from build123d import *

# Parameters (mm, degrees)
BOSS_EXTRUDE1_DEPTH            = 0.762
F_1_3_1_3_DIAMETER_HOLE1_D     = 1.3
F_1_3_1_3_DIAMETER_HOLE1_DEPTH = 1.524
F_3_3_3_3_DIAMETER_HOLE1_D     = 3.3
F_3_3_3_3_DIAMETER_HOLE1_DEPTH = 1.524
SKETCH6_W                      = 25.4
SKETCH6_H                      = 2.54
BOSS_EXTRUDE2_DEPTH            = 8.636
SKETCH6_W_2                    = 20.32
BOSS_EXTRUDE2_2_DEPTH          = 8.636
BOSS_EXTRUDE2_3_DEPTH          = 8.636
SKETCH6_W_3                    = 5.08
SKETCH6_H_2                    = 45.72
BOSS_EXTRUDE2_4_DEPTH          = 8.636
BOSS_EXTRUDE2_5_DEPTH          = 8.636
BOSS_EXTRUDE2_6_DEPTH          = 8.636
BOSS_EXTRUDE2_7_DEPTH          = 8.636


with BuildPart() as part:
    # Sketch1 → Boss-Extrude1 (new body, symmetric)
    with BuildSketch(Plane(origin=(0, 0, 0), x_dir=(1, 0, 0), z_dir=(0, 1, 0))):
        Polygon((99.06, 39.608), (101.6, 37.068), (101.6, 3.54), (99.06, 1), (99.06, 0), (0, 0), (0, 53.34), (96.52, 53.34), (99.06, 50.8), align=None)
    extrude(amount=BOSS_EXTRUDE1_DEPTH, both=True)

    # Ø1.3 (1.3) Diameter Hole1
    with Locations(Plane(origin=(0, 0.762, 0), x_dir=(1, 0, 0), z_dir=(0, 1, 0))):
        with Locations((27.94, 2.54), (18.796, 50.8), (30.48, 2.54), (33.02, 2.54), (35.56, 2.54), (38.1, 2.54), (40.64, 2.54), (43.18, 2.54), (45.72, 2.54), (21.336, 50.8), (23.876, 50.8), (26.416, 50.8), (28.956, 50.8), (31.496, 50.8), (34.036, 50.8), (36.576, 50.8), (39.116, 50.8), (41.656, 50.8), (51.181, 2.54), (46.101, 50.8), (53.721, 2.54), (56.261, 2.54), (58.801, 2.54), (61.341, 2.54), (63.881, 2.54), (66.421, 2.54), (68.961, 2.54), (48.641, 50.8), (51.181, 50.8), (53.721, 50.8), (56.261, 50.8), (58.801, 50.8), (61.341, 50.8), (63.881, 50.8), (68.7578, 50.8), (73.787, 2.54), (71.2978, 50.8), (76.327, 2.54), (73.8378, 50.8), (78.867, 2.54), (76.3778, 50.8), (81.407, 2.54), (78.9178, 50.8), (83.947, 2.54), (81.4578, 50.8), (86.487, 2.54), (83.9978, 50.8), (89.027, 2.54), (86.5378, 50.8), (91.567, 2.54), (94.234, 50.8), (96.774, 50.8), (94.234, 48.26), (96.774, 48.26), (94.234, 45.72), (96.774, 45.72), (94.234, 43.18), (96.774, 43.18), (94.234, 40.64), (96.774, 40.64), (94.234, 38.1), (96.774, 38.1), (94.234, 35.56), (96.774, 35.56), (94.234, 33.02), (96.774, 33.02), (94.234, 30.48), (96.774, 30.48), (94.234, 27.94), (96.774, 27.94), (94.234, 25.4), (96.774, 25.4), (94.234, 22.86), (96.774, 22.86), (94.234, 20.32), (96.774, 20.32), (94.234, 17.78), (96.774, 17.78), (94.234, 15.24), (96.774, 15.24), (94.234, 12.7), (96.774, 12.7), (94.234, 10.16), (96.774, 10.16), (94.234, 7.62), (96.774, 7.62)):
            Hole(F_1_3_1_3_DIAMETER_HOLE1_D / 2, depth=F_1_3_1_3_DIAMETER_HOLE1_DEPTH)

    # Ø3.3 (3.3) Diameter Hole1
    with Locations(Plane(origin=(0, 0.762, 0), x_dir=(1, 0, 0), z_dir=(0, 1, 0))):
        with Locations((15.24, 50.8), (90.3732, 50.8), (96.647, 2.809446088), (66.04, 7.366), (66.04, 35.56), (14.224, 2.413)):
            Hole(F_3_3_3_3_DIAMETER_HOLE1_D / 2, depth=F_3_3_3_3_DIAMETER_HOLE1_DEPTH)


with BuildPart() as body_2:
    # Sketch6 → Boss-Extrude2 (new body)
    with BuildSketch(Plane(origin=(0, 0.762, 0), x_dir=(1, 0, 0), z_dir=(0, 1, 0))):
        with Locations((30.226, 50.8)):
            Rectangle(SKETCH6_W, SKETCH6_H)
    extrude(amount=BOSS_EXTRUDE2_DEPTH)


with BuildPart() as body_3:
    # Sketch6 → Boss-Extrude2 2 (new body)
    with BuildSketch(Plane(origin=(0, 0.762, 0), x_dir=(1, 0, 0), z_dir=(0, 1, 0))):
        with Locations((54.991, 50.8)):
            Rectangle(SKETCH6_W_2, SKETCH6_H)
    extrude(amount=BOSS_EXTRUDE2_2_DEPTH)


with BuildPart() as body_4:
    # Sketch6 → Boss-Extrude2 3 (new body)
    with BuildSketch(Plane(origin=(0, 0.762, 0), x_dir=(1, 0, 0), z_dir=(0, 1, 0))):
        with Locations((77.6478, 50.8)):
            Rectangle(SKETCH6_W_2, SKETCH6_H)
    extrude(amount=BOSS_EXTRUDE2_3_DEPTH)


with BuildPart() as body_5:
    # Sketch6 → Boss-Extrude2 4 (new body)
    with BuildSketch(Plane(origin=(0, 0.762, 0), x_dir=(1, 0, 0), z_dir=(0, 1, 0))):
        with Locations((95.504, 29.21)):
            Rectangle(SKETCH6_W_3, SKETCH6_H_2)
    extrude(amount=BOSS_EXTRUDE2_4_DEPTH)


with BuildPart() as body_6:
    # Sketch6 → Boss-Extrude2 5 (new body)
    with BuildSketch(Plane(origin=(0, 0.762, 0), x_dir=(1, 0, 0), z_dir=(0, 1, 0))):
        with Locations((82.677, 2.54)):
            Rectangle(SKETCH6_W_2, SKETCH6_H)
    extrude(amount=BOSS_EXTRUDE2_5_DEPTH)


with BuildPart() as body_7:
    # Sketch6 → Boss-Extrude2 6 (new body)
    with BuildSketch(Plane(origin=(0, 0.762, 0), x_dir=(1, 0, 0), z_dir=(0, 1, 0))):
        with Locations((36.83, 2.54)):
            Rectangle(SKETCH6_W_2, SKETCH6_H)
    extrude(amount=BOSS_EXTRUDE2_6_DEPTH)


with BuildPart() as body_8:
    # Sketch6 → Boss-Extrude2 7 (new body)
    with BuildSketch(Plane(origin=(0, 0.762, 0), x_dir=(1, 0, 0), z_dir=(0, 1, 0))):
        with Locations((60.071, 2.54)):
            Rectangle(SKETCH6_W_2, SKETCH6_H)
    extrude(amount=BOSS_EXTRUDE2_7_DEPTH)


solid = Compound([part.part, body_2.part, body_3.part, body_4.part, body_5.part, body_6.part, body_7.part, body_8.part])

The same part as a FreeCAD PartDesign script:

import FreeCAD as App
import Part
import Sketcher
Q = App.Units.Quantity


def add_polygon(sketch, points):
    """Adds a closed chain of lines whose ends are joined by coincident constraints."""
    first, n = sketch.GeometryCount, len(points)
    for a, b in zip(points, points[1:] + points[:1]):
        sketch.addGeometry(Part.LineSegment(App.Vector(*a, 0), App.Vector(*b, 0)), False)
    for i in range(n):
        sketch.addConstraint(Sketcher.Constraint("Coincident", first + i, 2, first + (i + 1) % n, 1))

doc = App.newDocument("Part")
body = doc.addObject("PartDesign::Body", "Body")

# Sketch on XZ plane
sketch1 = body.newObject("Sketcher::SketchObject", "Sketch")
sketch1.AttachmentSupport = (doc.getObject("XZ_Plane"), [""])
sketch1.MapMode = "FlatFace"
add_polygon(sketch1, [(101.6, -37.1), (99.1, -39.6), (99.1, -50.8), (96.5, -53.3), (0, -53.3), (0, 0), (99.1, 0), (99.1, -1), (101.6, -3.5)])  # lines 0-8
sketch1.addConstraint(Sketcher.Constraint("Vertical", 1))
sketch1.addConstraint(Sketcher.Constraint("Horizontal", 3))
sketch1.addConstraint(Sketcher.Constraint("Vertical", 4))
sketch1.addConstraint(Sketcher.Constraint("Horizontal", 5))
sketch1.addConstraint(Sketcher.Constraint("Vertical", 6))
sketch1.addConstraint(Sketcher.Constraint("Vertical", 8))
sketch1.addConstraint(Sketcher.Constraint("Coincident", 4, 2, -1, 1))
sketch1.addConstraint(Sketcher.Constraint("Parallel", 0, 2))
sketch1.addConstraint(Sketcher.Constraint("Perpendicular", 2, 7))
sketch1.addConstraint(Sketcher.Constraint("Vertical", 1, 2, 5, 2))
sketch1.addConstraint(Sketcher.Constraint("Equal", 0, 2))
sketch1.addConstraint(Sketcher.Constraint("Equal", 2, 7))
sketch1.addConstraint(Sketcher.Constraint("DistanceX", 3, 2, 3, 1, Q("3.8 in")))
sketch1.addConstraint(Sketcher.Constraint("DistanceX", 5, 1, 5, 2, Q("3.9 in")))
sketch1.addConstraint(Sketcher.Constraint("DistanceY", 4, 1, 4, 2, Q("2.1 in")))
sketch1.addConstraint(Sketcher.Constraint("DistanceY", 8, 2, 8, 1, Q("1.32 in")))
sketch1.addConstraint(Sketcher.Constraint("DistanceY", 1, 2, 1, 1, Q("11.192 mm")))
pad1 = body.newObject("PartDesign::Pad", "Pad")
pad1.Profile = sketch1
pad1.Length = Q("0.06 in")
pad1.Midplane = True

# Sketch on XZ plane
sketch2 = body.newObject("Sketcher::SketchObject", "Sketch001")
sketch2.AttachmentSupport = (doc.getObject("XZ_Plane"), [""])
sketch2.MapMode = "FlatFace"
sketch2.AttachmentOffset = App.Placement(App.Vector(0, 0, -0.03 * 25.4), App.Rotation())
sketch2.addGeometry(Part.Circle(App.Vector(27.9, -2.5, 0), App.Vector(0, 0, 1), 0.7), False)
sketch2.addGeometry(Part.Circle(App.Vector(18.8, -50.8, 0), App.Vector(0, 0, 1), 0.7), False)
sketch2.addGeometry(Part.Circle(App.Vector(30.5, -2.5, 0), App.Vector(0, 0, 1), 0.7), False)
sketch2.addGeometry(Part.Circle(App.Vector(33, -2.5, 0), App.Vector(0, 0, 1), 0.7), False)
sketch2.addGeometry(Part.Circle(App.Vector(35.6, -2.5, 0), App.Vector(0, 0, 1), 0.7), False)
sketch2.addGeometry(Part.Circle(App.Vector(38.1, -2.5, 0), App.Vector(0, 0, 1), 0.7), False)
sketch2.addGeometry(Part.Circle(App.Vector(40.6, -2.5, 0), App.Vector(0, 0, 1), 0.7), False)
sketch2.addGeometry(Part.Circle(App.Vector(43.2, -2.5, 0), App.Vector(0, 0, 1), 0.7), False)
sketch2.addGeometry(Part.Circle(App.Vector(45.7, -2.5, 0), App.Vector(0, 0, 1), 0.7), False)
sketch2.addGeometry(Part.Circle(App.Vector(21.3, -50.8, 0), App.Vector(0, 0, 1), 0.7), False)
sketch2.addGeometry(Part.Circle(App.Vector(23.9, -50.8, 0), App.Vector(0, 0, 1), 0.7), False)
sketch2.addGeometry(Part.Circle(App.Vector(26.4, -50.8, 0), App.Vector(0, 0, 1), 0.7), False)
sketch2.addGeometry(Part.Circle(App.Vector(29, -50.8, 0), App.Vector(0, 0, 1), 0.7), False)
sketch2.addGeometry(Part.Circle(App.Vector(31.5, -50.8, 0), App.Vector(0, 0, 1), 0.7), False)
sketch2.addGeometry(Part.Circle(App.Vector(34, -50.8, 0), App.Vector(0, 0, 1), 0.7), False)
sketch2.addGeometry(Part.Circle(App.Vector(36.6, -50.8, 0), App.Vector(0, 0, 1), 0.7), False)
sketch2.addGeometry(Part.Circle(App.Vector(39.1, -50.8, 0), App.Vector(0, 0, 1), 0.7), False)
sketch2.addGeometry(Part.Circle(App.Vector(41.7, -50.8, 0), App.Vector(0, 0, 1), 0.7), False)
sketch2.addGeometry(Part.Circle(App.Vector(51.2, -2.5, 0), App.Vector(0, 0, 1), 0.7), False)
sketch2.addGeometry(Part.Circle(App.Vector(46.1, -50.8, 0), App.Vector(0, 0, 1), 0.7), False)
sketch2.addGeometry(Part.Circle(App.Vector(53.7, -2.5, 0), App.Vector(0, 0, 1), 0.7), False)
sketch2.addGeometry(Part.Circle(App.Vector(56.3, -2.5, 0), App.Vector(0, 0, 1), 0.7), False)
sketch2.addGeometry(Part.Circle(App.Vector(58.8, -2.5, 0), App.Vector(0, 0, 1), 0.7), False)
sketch2.addGeometry(Part.Circle(App.Vector(61.3, -2.5, 0), App.Vector(0, 0, 1), 0.7), False)
sketch2.addGeometry(Part.Circle(App.Vector(63.9, -2.5, 0), App.Vector(0, 0, 1), 0.7), False)
sketch2.addGeometry(Part.Circle(App.Vector(66.4, -2.5, 0), App.Vector(0, 0, 1), 0.7), False)
sketch2.addGeometry(Part.Circle(App.Vector(69, -2.5, 0), App.Vector(0, 0, 1), 0.7), False)
sketch2.addGeometry(Part.Circle(App.Vector(48.6, -50.8, 0), App.Vector(0, 0, 1), 0.7), False)
sketch2.addGeometry(Part.Circle(App.Vector(51.2, -50.8, 0), App.Vector(0, 0, 1), 0.7), False)
sketch2.addGeometry(Part.Circle(App.Vector(53.7, -50.8, 0), App.Vector(0, 0, 1), 0.7), False)
sketch2.addGeometry(Part.Circle(App.Vector(56.3, -50.8, 0), App.Vector(0, 0, 1), 0.7), False)
sketch2.addGeometry(Part.Circle(App.Vector(58.8, -50.8, 0), App.Vector(0, 0, 1), 0.7), False)
sketch2.addGeometry(Part.Circle(App.Vector(61.3, -50.8, 0), App.Vector(0, 0, 1), 0.7), False)
sketch2.addGeometry(Part.Circle(App.Vector(63.9, -50.8, 0), App.Vector(0, 0, 1), 0.7), False)
sketch2.addGeometry(Part.Circle(App.Vector(68.8, -50.8, 0), App.Vector(0, 0, 1), 0.7), False)
sketch2.addGeometry(Part.Circle(App.Vector(73.8, -2.5, 0), App.Vector(0, 0, 1), 0.7), False)
sketch2.addGeometry(Part.Circle(App.Vector(71.3, -50.8, 0), App.Vector(0, 0, 1), 0.7), False)
sketch2.addGeometry(Part.Circle(App.Vector(76.3, -2.5, 0), App.Vector(0, 0, 1), 0.7), False)
sketch2.addGeometry(Part.Circle(App.Vector(73.8, -50.8, 0), App.Vector(0, 0, 1), 0.7), False)
sketch2.addGeometry(Part.Circle(App.Vector(78.9, -2.5, 0), App.Vector(0, 0, 1), 0.7), False)
sketch2.addGeometry(Part.Circle(App.Vector(76.4, -50.8, 0), App.Vector(0, 0, 1), 0.7), False)
sketch2.addGeometry(Part.Circle(App.Vector(81.4, -2.5, 0), App.Vector(0, 0, 1), 0.7), False)
sketch2.addGeometry(Part.Circle(App.Vector(78.9, -50.8, 0), App.Vector(0, 0, 1), 0.7), False)
sketch2.addGeometry(Part.Circle(App.Vector(83.9, -2.5, 0), App.Vector(0, 0, 1), 0.7), False)
sketch2.addGeometry(Part.Circle(App.Vector(81.5, -50.8, 0), App.Vector(0, 0, 1), 0.7), False)
sketch2.addGeometry(Part.Circle(App.Vector(86.5, -2.5, 0), App.Vector(0, 0, 1), 0.7), False)
sketch2.addGeometry(Part.Circle(App.Vector(84, -50.8, 0), App.Vector(0, 0, 1), 0.7), False)
sketch2.addGeometry(Part.Circle(App.Vector(89, -2.5, 0), App.Vector(0, 0, 1), 0.7), False)
sketch2.addGeometry(Part.Circle(App.Vector(86.5, -50.8, 0), App.Vector(0, 0, 1), 0.7), False)
sketch2.addGeometry(Part.Circle(App.Vector(91.6, -2.5, 0), App.Vector(0, 0, 1), 0.7), False)
sketch2.addGeometry(Part.Circle(App.Vector(94.2, -50.8, 0), App.Vector(0, 0, 1), 0.7), False)
sketch2.addGeometry(Part.Circle(App.Vector(96.8, -50.8, 0), App.Vector(0, 0, 1), 0.7), False)
sketch2.addGeometry(Part.Circle(App.Vector(94.2, -48.3, 0), App.Vector(0, 0, 1), 0.7), False)
sketch2.addGeometry(Part.Circle(App.Vector(96.8, -48.3, 0), App.Vector(0, 0, 1), 0.7), False)
sketch2.addGeometry(Part.Circle(App.Vector(94.2, -45.7, 0), App.Vector(0, 0, 1), 0.7), False)
sketch2.addGeometry(Part.Circle(App.Vector(96.8, -45.7, 0), App.Vector(0, 0, 1), 0.7), False)
sketch2.addGeometry(Part.Circle(App.Vector(94.2, -43.2, 0), App.Vector(0, 0, 1), 0.7), False)
sketch2.addGeometry(Part.Circle(App.Vector(96.8, -43.2, 0), App.Vector(0, 0, 1), 0.7), False)
sketch2.addGeometry(Part.Circle(App.Vector(94.2, -40.6, 0), App.Vector(0, 0, 1), 0.7), False)
sketch2.addGeometry(Part.Circle(App.Vector(96.8, -40.6, 0), App.Vector(0, 0, 1), 0.7), False)
sketch2.addGeometry(Part.Circle(App.Vector(94.2, -38.1, 0), App.Vector(0, 0, 1), 0.7), False)
sketch2.addGeometry(Part.Circle(App.Vector(96.8, -38.1, 0), App.Vector(0, 0, 1), 0.7), False)
sketch2.addGeometry(Part.Circle(App.Vector(94.2, -35.6, 0), App.Vector(0, 0, 1), 0.7), False)
sketch2.addGeometry(Part.Circle(App.Vector(96.8, -35.6, 0), App.Vector(0, 0, 1), 0.7), False)
sketch2.addGeometry(Part.Circle(App.Vector(94.2, -33, 0), App.Vector(0, 0, 1), 0.7), False)
sketch2.addGeometry(Part.Circle(App.Vector(96.8, -33, 0), App.Vector(0, 0, 1), 0.7), False)
sketch2.addGeometry(Part.Circle(App.Vector(94.2, -30.5, 0), App.Vector(0, 0, 1), 0.7), False)
sketch2.addGeometry(Part.Circle(App.Vector(96.8, -30.5, 0), App.Vector(0, 0, 1), 0.7), False)
sketch2.addGeometry(Part.Circle(App.Vector(94.2, -27.9, 0), App.Vector(0, 0, 1), 0.7), False)
sketch2.addGeometry(Part.Circle(App.Vector(96.8, -27.9, 0), App.Vector(0, 0, 1), 0.7), False)
sketch2.addGeometry(Part.Circle(App.Vector(94.2, -25.4, 0), App.Vector(0, 0, 1), 0.7), False)
sketch2.addGeometry(Part.Circle(App.Vector(96.8, -25.4, 0), App.Vector(0, 0, 1), 0.7), False)
sketch2.addGeometry(Part.Circle(App.Vector(94.2, -22.9, 0), App.Vector(0, 0, 1), 0.7), False)
sketch2.addGeometry(Part.Circle(App.Vector(96.8, -22.9, 0), App.Vector(0, 0, 1), 0.7), False)
sketch2.addGeometry(Part.Circle(App.Vector(94.2, -20.3, 0), App.Vector(0, 0, 1), 0.7), False)
sketch2.addGeometry(Part.Circle(App.Vector(96.8, -20.3, 0), App.Vector(0, 0, 1), 0.7), False)
sketch2.addGeometry(Part.Circle(App.Vector(94.2, -17.8, 0), App.Vector(0, 0, 1), 0.7), False)
sketch2.addGeometry(Part.Circle(App.Vector(96.8, -17.8, 0), App.Vector(0, 0, 1), 0.7), False)
sketch2.addGeometry(Part.Circle(App.Vector(94.2, -15.2, 0), App.Vector(0, 0, 1), 0.7), False)
sketch2.addGeometry(Part.Circle(App.Vector(96.8, -15.2, 0), App.Vector(0, 0, 1), 0.7), False)
sketch2.addGeometry(Part.Circle(App.Vector(94.2, -12.7, 0), App.Vector(0, 0, 1), 0.7), False)
sketch2.addGeometry(Part.Circle(App.Vector(96.8, -12.7, 0), App.Vector(0, 0, 1), 0.7), False)
sketch2.addGeometry(Part.Circle(App.Vector(94.2, -10.2, 0), App.Vector(0, 0, 1), 0.7), False)
sketch2.addGeometry(Part.Circle(App.Vector(96.8, -10.2, 0), App.Vector(0, 0, 1), 0.7), False)
sketch2.addGeometry(Part.Circle(App.Vector(94.2, -7.6, 0), App.Vector(0, 0, 1), 0.7), False)
sketch2.addGeometry(Part.Circle(App.Vector(96.8, -7.6, 0), App.Vector(0, 0, 1), 0.7), False)
sketch2.addConstraint(Sketcher.Constraint("Equal", 0, 1))
sketch2.addConstraint(Sketcher.Constraint("Equal", 1, 2))
sketch2.addConstraint(Sketcher.Constraint("Equal", 2, 3))
sketch2.addConstraint(Sketcher.Constraint("Equal", 3, 4))
sketch2.addConstraint(Sketcher.Constraint("Equal", 4, 5))
sketch2.addConstraint(Sketcher.Constraint("Equal", 5, 6))
sketch2.addConstraint(Sketcher.Constraint("Equal", 6, 7))
sketch2.addConstraint(Sketcher.Constraint("Equal", 7, 8))
sketch2.addConstraint(Sketcher.Constraint("Equal", 8, 9))
sketch2.addConstraint(Sketcher.Constraint("Equal", 9, 10))
sketch2.addConstraint(Sketcher.Constraint("Equal", 10, 11))
sketch2.addConstraint(Sketcher.Constraint("Equal", 11, 12))
sketch2.addConstraint(Sketcher.Constraint("Equal", 12, 13))
sketch2.addConstraint(Sketcher.Constraint("Equal", 13, 14))
sketch2.addConstraint(Sketcher.Constraint("Equal", 14, 15))
sketch2.addConstraint(Sketcher.Constraint("Equal", 15, 16))
sketch2.addConstraint(Sketcher.Constraint("Equal", 16, 17))
sketch2.addConstraint(Sketcher.Constraint("Equal", 17, 18))
sketch2.addConstraint(Sketcher.Constraint("Equal", 18, 19))
sketch2.addConstraint(Sketcher.Constraint("Equal", 19, 20))
sketch2.addConstraint(Sketcher.Constraint("Equal", 20, 21))
sketch2.addConstraint(Sketcher.Constraint("Equal", 21, 22))
sketch2.addConstraint(Sketcher.Constraint("Equal", 22, 23))
sketch2.addConstraint(Sketcher.Constraint("Equal", 23, 24))
sketch2.addConstraint(Sketcher.Constraint("Equal", 24, 25))
sketch2.addConstraint(Sketcher.Constraint("Equal", 25, 26))
sketch2.addConstraint(Sketcher.Constraint("Equal", 26, 27))
sketch2.addConstraint(Sketcher.Constraint("Equal", 27, 28))
sketch2.addConstraint(Sketcher.Constraint("Equal", 28, 29))
sketch2.addConstraint(Sketcher.Constraint("Equal", 29, 30))
sketch2.addConstraint(Sketcher.Constraint("Equal", 30, 31))
sketch2.addConstraint(Sketcher.Constraint("Equal", 31, 32))
sketch2.addConstraint(Sketcher.Constraint("Equal", 32, 33))
sketch2.addConstraint(Sketcher.Constraint("Equal", 33, 34))
sketch2.addConstraint(Sketcher.Constraint("Equal", 34, 35))
sketch2.addConstraint(Sketcher.Constraint("Equal", 35, 36))
sketch2.addConstraint(Sketcher.Constraint("Equal", 36, 37))
sketch2.addConstraint(Sketcher.Constraint("Equal", 37, 38))
sketch2.addConstraint(Sketcher.Constraint("Equal", 38, 39))
sketch2.addConstraint(Sketcher.Constraint("Equal", 39, 40))
sketch2.addConstraint(Sketcher.Constraint("Equal", 40, 41))
sketch2.addConstraint(Sketcher.Constraint("Equal", 41, 42))
sketch2.addConstraint(Sketcher.Constraint("Equal", 42, 43))
sketch2.addConstraint(Sketcher.Constraint("Equal", 43, 44))
sketch2.addConstraint(Sketcher.Constraint("Equal", 44, 45))
sketch2.addConstraint(Sketcher.Constraint("Equal", 45, 46))
sketch2.addConstraint(Sketcher.Constraint("Equal", 46, 47))
sketch2.addConstraint(Sketcher.Constraint("Equal", 47, 48))
sketch2.addConstraint(Sketcher.Constraint("Equal", 48, 49))
sketch2.addConstraint(Sketcher.Constraint("Equal", 49, 50))
sketch2.addConstraint(Sketcher.Constraint("Equal", 50, 51))
sketch2.addConstraint(Sketcher.Constraint("Equal", 51, 52))
sketch2.addConstraint(Sketcher.Constraint("Equal", 52, 53))
sketch2.addConstraint(Sketcher.Constraint("Equal", 53, 54))
sketch2.addConstraint(Sketcher.Constraint("Equal", 54, 55))
sketch2.addConstraint(Sketcher.Constraint("Equal", 55, 56))
sketch2.addConstraint(Sketcher.Constraint("Equal", 56, 57))
sketch2.addConstraint(Sketcher.Constraint("Equal", 57, 58))
sketch2.addConstraint(Sketcher.Constraint("Equal", 58, 59))
sketch2.addConstraint(Sketcher.Constraint("Equal", 59, 60))
sketch2.addConstraint(Sketcher.Constraint("Equal", 60, 61))
sketch2.addConstraint(Sketcher.Constraint("Equal", 61, 62))
sketch2.addConstraint(Sketcher.Constraint("Equal", 62, 63))
sketch2.addConstraint(Sketcher.Constraint("Equal", 63, 64))
sketch2.addConstraint(Sketcher.Constraint("Equal", 64, 65))
sketch2.addConstraint(Sketcher.Constraint("Equal", 65, 66))
sketch2.addConstraint(Sketcher.Constraint("Equal", 66, 67))
sketch2.addConstraint(Sketcher.Constraint("Equal", 67, 68))
sketch2.addConstraint(Sketcher.Constraint("Equal", 68, 69))
sketch2.addConstraint(Sketcher.Constraint("Equal", 69, 70))
sketch2.addConstraint(Sketcher.Constraint("Equal", 70, 71))
sketch2.addConstraint(Sketcher.Constraint("Equal", 71, 72))
sketch2.addConstraint(Sketcher.Constraint("Equal", 72, 73))
sketch2.addConstraint(Sketcher.Constraint("Equal", 73, 74))
sketch2.addConstraint(Sketcher.Constraint("Equal", 74, 75))
sketch2.addConstraint(Sketcher.Constraint("Equal", 75, 76))
sketch2.addConstraint(Sketcher.Constraint("Equal", 76, 77))
sketch2.addConstraint(Sketcher.Constraint("Equal", 77, 78))
sketch2.addConstraint(Sketcher.Constraint("Equal", 78, 79))
sketch2.addConstraint(Sketcher.Constraint("Equal", 79, 80))
sketch2.addConstraint(Sketcher.Constraint("Equal", 80, 81))
sketch2.addConstraint(Sketcher.Constraint("Equal", 81, 82))
sketch2.addConstraint(Sketcher.Constraint("Equal", 82, 83))
sketch2.addConstraint(Sketcher.Constraint("Equal", 83, 84))
sketch2.addConstraint(Sketcher.Constraint("Equal", 84, 85))
sketch2.addConstraint(Sketcher.Constraint("Horizontal", 0, 3, 2, 3))
sketch2.addConstraint(Sketcher.Constraint("Horizontal", 2, 3, 3, 3))
sketch2.addConstraint(Sketcher.Constraint("Horizontal", 3, 3, 4, 3))
sketch2.addConstraint(Sketcher.Constraint("Horizontal", 4, 3, 5, 3))
sketch2.addConstraint(Sketcher.Constraint("Horizontal", 5, 3, 6, 3))
sketch2.addConstraint(Sketcher.Constraint("Horizontal", 6, 3, 7, 3))
sketch2.addConstraint(Sketcher.Constraint("Horizontal", 7, 3, 8, 3))
sketch2.addConstraint(Sketcher.Constraint("Horizontal", 1, 3, 9, 3))
sketch2.addConstraint(Sketcher.Constraint("Horizontal", 9, 3, 10, 3))
sketch2.addConstraint(Sketcher.Constraint("Horizontal", 10, 3, 11, 3))
sketch2.addConstraint(Sketcher.Constraint("Horizontal", 11, 3, 12, 3))
sketch2.addConstraint(Sketcher.Constraint("Horizontal", 12, 3, 13, 3))
sketch2.addConstraint(Sketcher.Constraint("Horizontal", 13, 3, 14, 3))
sketch2.addConstraint(Sketcher.Constraint("Horizontal", 14, 3, 15, 3))
sketch2.addConstraint(Sketcher.Constraint("Horizontal", 15, 3, 16, 3))
sketch2.addConstraint(Sketcher.Constraint("Horizontal", 16, 3, 17, 3))
sketch2.addConstraint(Sketcher.Constraint("Horizontal", 8, 3, 18, 3))
sketch2.addConstraint(Sketcher.Constraint("Horizontal", 17, 3, 19, 3))
sketch2.addConstraint(Sketcher.Constraint("Horizontal", 18, 3, 20, 3))
sketch2.addConstraint(Sketcher.Constraint("Horizontal", 20, 3, 21, 3))
sketch2.addConstraint(Sketcher.Constraint("Horizontal", 21, 3, 22, 3))
sketch2.addConstraint(Sketcher.Constraint("Horizontal", 22, 3, 23, 3))
sketch2.addConstraint(Sketcher.Constraint("Horizontal", 23, 3, 24, 3))
sketch2.addConstraint(Sketcher.Constraint("Horizontal", 24, 3, 25, 3))
sketch2.addConstraint(Sketcher.Constraint("Horizontal", 25, 3, 26, 3))
sketch2.addConstraint(Sketcher.Constraint("Horizontal", 19, 3, 27, 3))
sketch2.addConstraint(Sketcher.Constraint("Horizontal", 27, 3, 28, 3))
sketch2.addConstraint(Sketcher.Constraint("Horizontal", 28, 3, 29, 3))
sketch2.addConstraint(Sketcher.Constraint("Horizontal", 29, 3, 30, 3))
sketch2.addConstraint(Sketcher.Constraint("Horizontal", 30, 3, 31, 3))
sketch2.addConstraint(Sketcher.Constraint("Horizontal", 31, 3, 32, 3))
sketch2.addConstraint(Sketcher.Constraint("Horizontal", 32, 3, 33, 3))
sketch2.addConstraint(Sketcher.Constraint("Horizontal", 33, 3, 34, 3))
sketch2.addConstraint(Sketcher.Constraint("Horizontal", 26, 3, 35, 3))
sketch2.addConstraint(Sketcher.Constraint("Horizontal", 34, 3, 36, 3))
sketch2.addConstraint(Sketcher.Constraint("Horizontal", 35, 3, 37, 3))
sketch2.addConstraint(Sketcher.Constraint("Horizontal", 36, 3, 38, 3))
sketch2.addConstraint(Sketcher.Constraint("Horizontal", 37, 3, 39, 3))
sketch2.addConstraint(Sketcher.Constraint("Horizontal", 38, 3, 40, 3))
sketch2.addConstraint(Sketcher.Constraint("Horizontal", 39, 3, 41, 3))
sketch2.addConstraint(Sketcher.Constraint("Horizontal", 40, 3, 42, 3))
sketch2.addConstraint(Sketcher.Constraint("Horizontal", 41, 3, 43, 3))
sketch2.addConstraint(Sketcher.Constraint("Horizontal", 42, 3, 44, 3))
sketch2.addConstraint(Sketcher.Constraint("Horizontal", 43, 3, 45, 3))
sketch2.addConstraint(Sketcher.Constraint("Horizontal", 44, 3, 46, 3))
sketch2.addConstraint(Sketcher.Constraint("Horizontal", 45, 3, 47, 3))
sketch2.addConstraint(Sketcher.Constraint("Horizontal", 46, 3, 48, 3))
sketch2.addConstraint(Sketcher.Constraint("Horizontal", 47, 3, 49, 3))
sketch2.addConstraint(Sketcher.Constraint("Horizontal", 48, 3, 50, 3))
sketch2.addConstraint(Sketcher.Constraint("Horizontal", 50, 3, 51, 3))
sketch2.addConstraint(Sketcher.Constraint("Horizontal", 52, 3, 53, 3))
sketch2.addConstraint(Sketcher.Constraint("Horizontal", 54, 3, 55, 3))
sketch2.addConstraint(Sketcher.Constraint("Horizontal", 56, 3, 57, 3))
sketch2.addConstraint(Sketcher.Constraint("Horizontal", 58, 3, 59, 3))
sketch2.addConstraint(Sketcher.Constraint("Horizontal", 60, 3, 61, 3))
sketch2.addConstraint(Sketcher.Constraint("Horizontal", 62, 3, 63, 3))
sketch2.addConstraint(Sketcher.Constraint("Horizontal", 64, 3, 65, 3))
sketch2.addConstraint(Sketcher.Constraint("Horizontal", 66, 3, 67, 3))
sketch2.addConstraint(Sketcher.Constraint("Horizontal", 68, 3, 69, 3))
sketch2.addConstraint(Sketcher.Constraint("Horizontal", 70, 3, 71, 3))
sketch2.addConstraint(Sketcher.Constraint("Horizontal", 72, 3, 73, 3))
sketch2.addConstraint(Sketcher.Constraint("Horizontal", 74, 3, 75, 3))
sketch2.addConstraint(Sketcher.Constraint("Horizontal", 76, 3, 77, 3))
sketch2.addConstraint(Sketcher.Constraint("Horizontal", 78, 3, 79, 3))
sketch2.addConstraint(Sketcher.Constraint("Horizontal", 80, 3, 81, 3))
sketch2.addConstraint(Sketcher.Constraint("Horizontal", 82, 3, 83, 3))
sketch2.addConstraint(Sketcher.Constraint("Horizontal", 84, 3, 85, 3))
sketch2.addConstraint(Sketcher.Constraint("Vertical", 18, 3, 28, 3))
sketch2.addConstraint(Sketcher.Constraint("Vertical", 20, 3, 29, 3))
sketch2.addConstraint(Sketcher.Constraint("Vertical", 21, 3, 30, 3))
sketch2.addConstraint(Sketcher.Constraint("Vertical", 22, 3, 31, 3))
sketch2.addConstraint(Sketcher.Constraint("Vertical", 23, 3, 32, 3))
sketch2.addConstraint(Sketcher.Constraint("Vertical", 24, 3, 33, 3))
sketch2.addConstraint(Sketcher.Constraint("Vertical", 50, 3, 52, 3))
sketch2.addConstraint(Sketcher.Constraint("Vertical", 51, 3, 53, 3))
sketch2.addConstraint(Sketcher.Constraint("Vertical", 52, 3, 54, 3))
sketch2.addConstraint(Sketcher.Constraint("Vertical", 53, 3, 55, 3))
sketch2.addConstraint(Sketcher.Constraint("Vertical", 54, 3, 56, 3))
sketch2.addConstraint(Sketcher.Constraint("Vertical", 55, 3, 57, 3))
sketch2.addConstraint(Sketcher.Constraint("Vertical", 56, 3, 58, 3))
sketch2.addConstraint(Sketcher.Constraint("Vertical", 57, 3, 59, 3))
sketch2.addConstraint(Sketcher.Constraint("Vertical", 58, 3, 60, 3))
sketch2.addConstraint(Sketcher.Constraint("Vertical", 59, 3, 61, 3))
sketch2.addConstraint(Sketcher.Constraint("Vertical", 60, 3, 62, 3))
sketch2.addConstraint(Sketcher.Constraint("Vertical", 61, 3, 63, 3))
sketch2.addConstraint(Sketcher.Constraint("Vertical", 62, 3, 64, 3))
sketch2.addConstraint(Sketcher.Constraint("Vertical", 63, 3, 65, 3))
sketch2.addConstraint(Sketcher.Constraint("Vertical", 64, 3, 66, 3))
sketch2.addConstraint(Sketcher.Constraint("Vertical", 65, 3, 67, 3))
sketch2.addConstraint(Sketcher.Constraint("Vertical", 66, 3, 68, 3))
sketch2.addConstraint(Sketcher.Constraint("Vertical", 67, 3, 69, 3))
sketch2.addConstraint(Sketcher.Constraint("Vertical", 68, 3, 70, 3))
sketch2.addConstraint(Sketcher.Constraint("Vertical", 69, 3, 71, 3))
sketch2.addConstraint(Sketcher.Constraint("Vertical", 70, 3, 72, 3))
sketch2.addConstraint(Sketcher.Constraint("Vertical", 71, 3, 73, 3))
sketch2.addConstraint(Sketcher.Constraint("Vertical", 72, 3, 74, 3))
sketch2.addConstraint(Sketcher.Constraint("Vertical", 73, 3, 75, 3))
sketch2.addConstraint(Sketcher.Constraint("Vertical", 74, 3, 76, 3))
sketch2.addConstraint(Sketcher.Constraint("Vertical", 75, 3, 77, 3))
sketch2.addConstraint(Sketcher.Constraint("Vertical", 76, 3, 78, 3))
sketch2.addConstraint(Sketcher.Constraint("Vertical", 77, 3, 79, 3))
sketch2.addConstraint(Sketcher.Constraint("Vertical", 78, 3, 80, 3))
sketch2.addConstraint(Sketcher.Constraint("Vertical", 79, 3, 81, 3))
sketch2.addConstraint(Sketcher.Constraint("Vertical", 80, 3, 82, 3))
sketch2.addConstraint(Sketcher.Constraint("Vertical", 81, 3, 83, 3))
sketch2.addConstraint(Sketcher.Constraint("Vertical", 82, 3, 84, 3))
sketch2.addConstraint(Sketcher.Constraint("Vertical", 83, 3, 85, 3))
sketch2.addConstraint(Sketcher.Constraint("DistanceY", 1, 3, -1, 1, Q("2 in")))
sketch2.addConstraint(Sketcher.Constraint("DistanceY", 70, 3, -1, 1, Q("1 in")))
sketch2.addConstraint(Sketcher.Constraint("DistanceX", -1, 1, 0, 3, Q("1.1 in")))
sketch2.addConstraint(Sketcher.Constraint("DistanceY", 0, 3, -1, 1, Q("0.1 in")))
sketch2.addConstraint(Sketcher.Constraint("DistanceX", -1, 1, 2, 3, Q("1.2 in")))
sketch2.addConstraint(Sketcher.Constraint("DistanceX", -1, 1, 3, 3, Q("1.3 in")))
sketch2.addConstraint(Sketcher.Constraint("DistanceX", -1, 1, 4, 3, Q("1.4 in")))
sketch2.addConstraint(Sketcher.Constraint("DistanceX", -1, 1, 5, 3, Q("1.5 in")))
sketch2.addConstraint(Sketcher.Constraint("DistanceX", -1, 1, 6, 3, Q("1.6 in")))
sketch2.addConstraint(Sketcher.Constraint("DistanceX", -1, 1, 7, 3, Q("1.7 in")))
sketch2.addConstraint(Sketcher.Constraint("DistanceX", -1, 1, 8, 3, Q("1.8 in")))
sketch2.addConstraint(Sketcher.Constraint("DistanceY", 52, 3, -1, 1, Q("1.9 in")))
sketch2.addConstraint(Sketcher.Constraint("DistanceY", 54, 3, -1, 1, Q("1.8 in")))
sketch2.addConstraint(Sketcher.Constraint("DistanceY", 56, 3, -1, 1, Q("1.7 in")))
sketch2.addConstraint(Sketcher.Constraint("DistanceY", 58, 3, -1, 1, Q("1.6 in")))
sketch2.addConstraint(Sketcher.Constraint("DistanceY", 60, 3, -1, 1, Q("1.5 in")))
sketch2.addConstraint(Sketcher.Constraint("DistanceY", 62, 3, -1, 1, Q("1.4 in")))
sketch2.addConstraint(Sketcher.Constraint("DistanceY", 64, 3, -1, 1, Q("1.3 in")))
sketch2.addConstraint(Sketcher.Constraint("DistanceY", 66, 3, -1, 1, Q("1.2 in")))
sketch2.addConstraint(Sketcher.Constraint("DistanceY", 68, 3, -1, 1, Q("1.1 in")))
sketch2.addConstraint(Sketcher.Constraint("DistanceY", 72, 3, -1, 1, Q("0.9 in")))
sketch2.addConstraint(Sketcher.Constraint("DistanceY", 74, 3, -1, 1, Q("0.8 in")))
sketch2.addConstraint(Sketcher.Constraint("DistanceY", 76, 3, -1, 1, Q("0.7 in")))
sketch2.addConstraint(Sketcher.Constraint("DistanceY", 78, 3, -1, 1, Q("0.6 in")))
sketch2.addConstraint(Sketcher.Constraint("DistanceY", 80, 3, -1, 1, Q("0.5 in")))
sketch2.addConstraint(Sketcher.Constraint("DistanceY", 82, 3, -1, 1, Q("0.4 in")))
sketch2.addConstraint(Sketcher.Constraint("DistanceY", 84, 3, -1, 1, Q("0.3 in")))
sketch2.addConstraint(Sketcher.Constraint("Diameter", 0, Q("1.3 mm")))
sketch2.addConstraint(Sketcher.Constraint("DistanceX", -1, 1, 1, 3, Q("0.74 in")))
sketch2.addConstraint(Sketcher.Constraint("DistanceX", -1, 1, 9, 3, Q("0.84 in")))
sketch2.addConstraint(Sketcher.Constraint("DistanceX", -1, 1, 10, 3, Q("0.94 in")))
sketch2.addConstraint(Sketcher.Constraint("DistanceX", -1, 1, 11, 3, Q("1.04 in")))
sketch2.addConstraint(Sketcher.Constraint("DistanceX", -1, 1, 12, 3, Q("1.14 in")))
sketch2.addConstraint(Sketcher.Constraint("DistanceX", -1, 1, 13, 3, Q("1.24 in")))
sketch2.addConstraint(Sketcher.Constraint("DistanceX", -1, 1, 14, 3, Q("1.34 in")))
sketch2.addConstraint(Sketcher.Constraint("DistanceX", -1, 1, 15, 3, Q("1.44 in")))
sketch2.addConstraint(Sketcher.Constraint("DistanceX", -1, 1, 16, 3, Q("1.54 in")))
sketch2.addConstraint(Sketcher.Constraint("DistanceX", -1, 1, 17, 3, Q("1.64 in")))
sketch2.addConstraint(Sketcher.Constraint("DistanceX", -1, 1, 50, 3, Q("3.71 in")))
sketch2.addConstraint(Sketcher.Constraint("DistanceX", -1, 1, 51, 3, Q("3.81 in")))
sketch2.addConstraint(Sketcher.Constraint("DistanceX", -1, 1, 18, 3, Q("2.015 in")))
sketch2.addConstraint(Sketcher.Constraint("DistanceX", -1, 1, 19, 3, Q("1.815 in")))
sketch2.addConstraint(Sketcher.Constraint("DistanceX", -1, 1, 20, 3, Q("2.115 in")))
sketch2.addConstraint(Sketcher.Constraint("DistanceX", -1, 1, 21, 3, Q("2.215 in")))
sketch2.addConstraint(Sketcher.Constraint("DistanceX", -1, 1, 22, 3, Q("2.315 in")))
sketch2.addConstraint(Sketcher.Constraint("DistanceX", -1, 1, 23, 3, Q("2.415 in")))
sketch2.addConstraint(Sketcher.Constraint("DistanceX", -1, 1, 24, 3, Q("2.515 in")))
sketch2.addConstraint(Sketcher.Constraint("DistanceX", -1, 1, 25, 3, Q("2.615 in")))
sketch2.addConstraint(Sketcher.Constraint("DistanceX", -1, 1, 26, 3, Q("2.715 in")))
sketch2.addConstraint(Sketcher.Constraint("DistanceX", -1, 1, 27, 3, Q("1.915 in")))
sketch2.addConstraint(Sketcher.Constraint("DistanceX", -1, 1, 34, 3, Q("2.707 in")))
sketch2.addConstraint(Sketcher.Constraint("DistanceX", -1, 1, 35, 3, Q("2.905 in")))
sketch2.addConstraint(Sketcher.Constraint("DistanceX", -1, 1, 36, 3, Q("2.807 in")))
sketch2.addConstraint(Sketcher.Constraint("DistanceX", -1, 1, 37, 3, Q("3.005 in")))
sketch2.addConstraint(Sketcher.Constraint("DistanceX", -1, 1, 38, 3, Q("2.907 in")))
sketch2.addConstraint(Sketcher.Constraint("DistanceX", -1, 1, 39, 3, Q("3.105 in")))
sketch2.addConstraint(Sketcher.Constraint("DistanceX", -1, 1, 40, 3, Q("3.007 in")))
sketch2.addConstraint(Sketcher.Constraint("DistanceX", -1, 1, 41, 3, Q("3.205 in")))
sketch2.addConstraint(Sketcher.Constraint("DistanceX", -1, 1, 42, 3, Q("3.107 in")))
sketch2.addConstraint(Sketcher.Constraint("DistanceX", -1, 1, 43, 3, Q("3.305 in")))
sketch2.addConstraint(Sketcher.Constraint("DistanceX", -1, 1, 44, 3, Q("3.207 in")))
sketch2.addConstraint(Sketcher.Constraint("DistanceX", -1, 1, 45, 3, Q("3.405 in")))
sketch2.addConstraint(Sketcher.Constraint("DistanceX", -1, 1, 46, 3, Q("3.307 in")))
sketch2.addConstraint(Sketcher.Constraint("DistanceX", -1, 1, 47, 3, Q("3.505 in")))
sketch2.addConstraint(Sketcher.Constraint("DistanceX", -1, 1, 48, 3, Q("3.407 in")))
sketch2.addConstraint(Sketcher.Constraint("DistanceX", -1, 1, 49, 3, Q("3.605 in")))
doc.recompute()
hole = body.newObject("PartDesign::Hole", "Hole")
hole.Profile = sketch2
hole.ThreadType = "None"
hole.Diameter = 1.3
hole.DepthType = "Dimension"
hole.Depth = Q("0.06 in")
hole.DrillPoint = "Flat"
hole.Reversed = True

# Sketch on XZ plane
sketch3 = body.newObject("Sketcher::SketchObject", "Sketch002")
sketch3.AttachmentSupport = (doc.getObject("XZ_Plane"), [""])
sketch3.MapMode = "FlatFace"
sketch3.AttachmentOffset = App.Placement(App.Vector(0, 0, -0.03 * 25.4), App.Rotation())
sketch3.addGeometry(Part.Circle(App.Vector(15.2, -50.8, 0), App.Vector(0, 0, 1), 1.6), False)
sketch3.addGeometry(Part.Circle(App.Vector(90.4, -50.8, 0), App.Vector(0, 0, 1), 1.6), False)
sketch3.addGeometry(Part.Circle(App.Vector(96.6, -2.8, 0), App.Vector(0, 0, 1), 1.6), False)
sketch3.addGeometry(Part.Circle(App.Vector(66, -7.4, 0), App.Vector(0, 0, 1), 1.6), False)
sketch3.addGeometry(Part.Circle(App.Vector(66, -35.6, 0), App.Vector(0, 0, 1), 1.6), False)
sketch3.addGeometry(Part.Circle(App.Vector(14.2, -2.4, 0), App.Vector(0, 0, 1), 1.6), False)
sketch3.addConstraint(Sketcher.Constraint("Equal", 0, 1))
sketch3.addConstraint(Sketcher.Constraint("Equal", 1, 2))
sketch3.addConstraint(Sketcher.Constraint("Equal", 2, 3))
sketch3.addConstraint(Sketcher.Constraint("Equal", 3, 4))
sketch3.addConstraint(Sketcher.Constraint("Equal", 4, 5))
sketch3.addConstraint(Sketcher.Constraint("Horizontal", 0, 3, 1, 3))
sketch3.addConstraint(Sketcher.Constraint("Vertical", 3, 3, 4, 3))
sketch3.addConstraint(Sketcher.Constraint("DistanceY", 0, 3, -1, 1, Q("2 in")))
sketch3.addConstraint(Sketcher.Constraint("DistanceX", 0, 3, 3, 3, Q("2 in")))
sketch3.addConstraint(Sketcher.Constraint("DistanceX", -1, 1, 0, 3, Q("0.6 in")))
sketch3.addConstraint(Sketcher.Constraint("DistanceY", 4, 3, -1, 1, Q("1.4 in")))
sketch3.addConstraint(Sketcher.Constraint("Diameter", 0, Q("3.3 mm")))
sketch3.addConstraint(Sketcher.Constraint("DistanceY", 3, 3, -1, 1, Q("0.29 in")))
sketch3.addConstraint(Sketcher.Constraint("DistanceX", -1, 1, 5, 3, Q("0.56 in")))
sketch3.addConstraint(Sketcher.Constraint("DistanceX", -1, 1, 1, 3, Q("3.558 in")))
sketch3.addConstraint(Sketcher.Constraint("DistanceX", -1, 1, 2, 3, Q("3.805 in")))
sketch3.addConstraint(Sketcher.Constraint("DistanceY", 5, 3, -1, 1, Q("0.095 in")))
sketch3.addConstraint(Sketcher.Constraint("DistanceY", 2, 3, -1, 1, Q("2.809446 mm")))
doc.recompute()
hole2 = body.newObject("PartDesign::Hole", "Hole001")
hole2.Profile = sketch3
hole2.ThreadType = "None"
hole2.Diameter = 3.3
hole2.DepthType = "Dimension"
hole2.Depth = Q("0.06 in")
hole2.DrillPoint = "Flat"
hole2.Reversed = True
body2 = doc.addObject("PartDesign::Body", "Body001")

# Sketch on XZ plane
sketch4 = body2.newObject("Sketcher::SketchObject", "Sketch003")
sketch4.AttachmentSupport = (doc.getObject("XZ_Plane001"), [""])
sketch4.MapMode = "FlatFace"
sketch4.AttachmentOffset = App.Placement(App.Vector(0, 0, -0.03 * 25.4), App.Rotation())
add_polygon(sketch4, [(17.5, -52.1), (17.5, -49.5), (42.9, -49.5), (42.9, -52.1)])  # lines 0-3
sketch4.addConstraint(Sketcher.Constraint("Vertical", 0))
sketch4.addConstraint(Sketcher.Constraint("Horizontal", 1))
sketch4.addConstraint(Sketcher.Constraint("Vertical", 2))
sketch4.addConstraint(Sketcher.Constraint("Horizontal", 3))
sketch4.addConstraint(Sketcher.Constraint("DistanceX", 1, 1, 1, 2, Q("1 in")))
sketch4.addConstraint(Sketcher.Constraint("DistanceY", 0, 1, 0, 2, Q("0.1 in")))
sketch4.addConstraint(Sketcher.Constraint("DistanceX", -1, 1, 0, 2, Q("0.69 in")))
sketch4.addConstraint(Sketcher.Constraint("DistanceY", 0, 2, -1, 1, Q("1.95 in")))
pad2 = body2.newObject("PartDesign::Pad", "Pad001")
pad2.Profile = sketch4
pad2.Length = Q("0.34 in")
pad2.Reversed = True
body3 = doc.addObject("PartDesign::Body", "Body002")

# Sketch on XZ plane
sketch5 = body3.newObject("Sketcher::SketchObject", "Sketch004")
sketch5.AttachmentSupport = (doc.getObject("XZ_Plane002"), [""])
sketch5.MapMode = "FlatFace"
sketch5.AttachmentOffset = App.Placement(App.Vector(0, 0, -0.03 * 25.4), App.Rotation())
add_polygon(sketch5, [(44.8, -52.1), (44.8, -49.5), (65.2, -49.5), (65.2, -52.1)])  # lines 0-3
sketch5.addConstraint(Sketcher.Constraint("Vertical", 0))
sketch5.addConstraint(Sketcher.Constraint("Horizontal", 1))
sketch5.addConstraint(Sketcher.Constraint("Vertical", 2))
sketch5.addConstraint(Sketcher.Constraint("Horizontal", 3))
sketch5.addConstraint(Sketcher.Constraint("DistanceX", 1, 1, 1, 2, Q("0.8 in")))
sketch5.addConstraint(Sketcher.Constraint("DistanceY", 0, 1, 0, 2, Q("0.1 in")))
sketch5.addConstraint(Sketcher.Constraint("DistanceY", 0, 2, -1, 1, Q("1.95 in")))
sketch5.addConstraint(Sketcher.Constraint("DistanceX", -1, 1, 0, 2, Q("1.765 in")))
pad3 = body3.newObject("PartDesign::Pad", "Pad002")
pad3.Profile = sketch5
pad3.Length = Q("0.34 in")
pad3.Reversed = True
body4 = doc.addObject("PartDesign::Body", "Body003")

# Sketch on XZ plane
sketch6 = body4.newObject("Sketcher::SketchObject", "Sketch005")
sketch6.AttachmentSupport = (doc.getObject("XZ_Plane003"), [""])
sketch6.MapMode = "FlatFace"
sketch6.AttachmentOffset = App.Placement(App.Vector(0, 0, -0.03 * 25.4), App.Rotation())
add_polygon(sketch6, [(67.5, -52.1), (67.5, -49.5), (87.8, -49.5), (87.8, -52.1)])  # lines 0-3
sketch6.addConstraint(Sketcher.Constraint("Vertical", 0))
sketch6.addConstraint(Sketcher.Constraint("Horizontal", 1))
sketch6.addConstraint(Sketcher.Constraint("Vertical", 2))
sketch6.addConstraint(Sketcher.Constraint("Horizontal", 3))
sketch6.addConstraint(Sketcher.Constraint("DistanceX", 1, 1, 1, 2, Q("0.8 in")))
sketch6.addConstraint(Sketcher.Constraint("DistanceY", 0, 1, 0, 2, Q("0.1 in")))
sketch6.addConstraint(Sketcher.Constraint("DistanceY", 0, 2, -1, 1, Q("1.95 in")))
sketch6.addConstraint(Sketcher.Constraint("DistanceX", -1, 1, 0, 2, Q("2.657 in")))
pad4 = body4.newObject("PartDesign::Pad", "Pad003")
pad4.Profile = sketch6
pad4.Length = Q("0.34 in")
pad4.Reversed = True
body5 = doc.addObject("PartDesign::Body", "Body004")

# Sketch on XZ plane
sketch7 = body5.newObject("Sketcher::SketchObject", "Sketch006")
sketch7.AttachmentSupport = (doc.getObject("XZ_Plane004"), [""])
sketch7.MapMode = "FlatFace"
sketch7.AttachmentOffset = App.Placement(App.Vector(0, 0, -0.03 * 25.4), App.Rotation())
add_polygon(sketch7, [(93, -52), (93, -6), (98, -6), (98, -52)])  # lines 0-3
sketch7.addConstraint(Sketcher.Constraint("Vertical", 0))
sketch7.addConstraint(Sketcher.Constraint("Horizontal", 1))
sketch7.addConstraint(Sketcher.Constraint("Vertical", 2))
sketch7.addConstraint(Sketcher.Constraint("Horizontal", 3))
sketch7.addConstraint(Sketcher.Constraint("DistanceX", 1, 1, 1, 2, Q("0.2 in")))
sketch7.addConstraint(Sketcher.Constraint("DistanceY", 0, 1, 0, 2, Q("1.8 in")))
sketch7.addConstraint(Sketcher.Constraint("DistanceX", -1, 1, 0, 2, Q("3.66 in")))
sketch7.addConstraint(Sketcher.Constraint("DistanceY", 0, 2, -1, 1, Q("0.25 in")))
pad5 = body5.newObject("PartDesign::Pad", "Pad004")
pad5.Profile = sketch7
pad5.Length = Q("0.34 in")
pad5.Reversed = True
body6 = doc.addObject("PartDesign::Body", "Body005")

# Sketch on XZ plane
sketch8 = body6.newObject("Sketcher::SketchObject", "Sketch007")
sketch8.AttachmentSupport = (doc.getObject("XZ_Plane005"), [""])
sketch8.MapMode = "FlatFace"
sketch8.AttachmentOffset = App.Placement(App.Vector(0, 0, -0.03 * 25.4), App.Rotation())
add_polygon(sketch8, [(72.5, -3.8), (72.5, -1.3), (92.8, -1.3), (92.8, -3.8)])  # lines 0-3
sketch8.addConstraint(Sketcher.Constraint("Vertical", 0))
sketch8.addConstraint(Sketcher.Constraint("Horizontal", 1))
sketch8.addConstraint(Sketcher.Constraint("Vertical", 2))
sketch8.addConstraint(Sketcher.Constraint("Horizontal", 3))
sketch8.addConstraint(Sketcher.Constraint("DistanceX", 1, 1, 1, 2, Q("0.8 in")))
sketch8.addConstraint(Sketcher.Constraint("DistanceY", 0, 1, 0, 2, Q("0.1 in")))
sketch8.addConstraint(Sketcher.Constraint("DistanceY", 0, 2, -1, 1, Q("0.05 in")))
sketch8.addConstraint(Sketcher.Constraint("DistanceX", -1, 1, 0, 2, Q("2.855 in")))
pad6 = body6.newObject("PartDesign::Pad", "Pad005")
pad6.Profile = sketch8
pad6.Length = Q("0.34 in")
pad6.Reversed = True
body7 = doc.addObject("PartDesign::Body", "Body006")

# Sketch on XZ plane
sketch9 = body7.newObject("Sketcher::SketchObject", "Sketch008")
sketch9.AttachmentSupport = (doc.getObject("XZ_Plane006"), [""])
sketch9.MapMode = "FlatFace"
sketch9.AttachmentOffset = App.Placement(App.Vector(0, 0, -0.03 * 25.4), App.Rotation())
add_polygon(sketch9, [(26.7, -3.8), (26.7, -1.3), (47, -1.3), (47, -3.8)])  # lines 0-3
sketch9.addConstraint(Sketcher.Constraint("Vertical", 0))
sketch9.addConstraint(Sketcher.Constraint("Horizontal", 1))
sketch9.addConstraint(Sketcher.Constraint("Vertical", 2))
sketch9.addConstraint(Sketcher.Constraint("Horizontal", 3))
sketch9.addConstraint(Sketcher.Constraint("DistanceX", 1, 1, 1, 2, Q("0.8 in")))
sketch9.addConstraint(Sketcher.Constraint("DistanceY", 0, 1, 0, 2, Q("0.1 in")))
sketch9.addConstraint(Sketcher.Constraint("DistanceX", -1, 1, 0, 2, Q("1.05 in")))
sketch9.addConstraint(Sketcher.Constraint("DistanceY", 0, 2, -1, 1, Q("0.05 in")))
pad7 = body7.newObject("PartDesign::Pad", "Pad006")
pad7.Profile = sketch9
pad7.Length = Q("0.34 in")
pad7.Reversed = True
body8 = doc.addObject("PartDesign::Body", "Body007")

# Sketch on XZ plane
sketch10 = body8.newObject("Sketcher::SketchObject", "Sketch009")
sketch10.AttachmentSupport = (doc.getObject("XZ_Plane007"), [""])
sketch10.MapMode = "FlatFace"
sketch10.AttachmentOffset = App.Placement(App.Vector(0, 0, -0.03 * 25.4), App.Rotation())
add_polygon(sketch10, [(49.9, -3.8), (49.9, -1.3), (70.2, -1.3), (70.2, -3.8)])  # lines 0-3
sketch10.addConstraint(Sketcher.Constraint("Vertical", 0))
sketch10.addConstraint(Sketcher.Constraint("Horizontal", 1))
sketch10.addConstraint(Sketcher.Constraint("Vertical", 2))
sketch10.addConstraint(Sketcher.Constraint("Horizontal", 3))
sketch10.addConstraint(Sketcher.Constraint("DistanceX", 1, 1, 1, 2, Q("0.8 in")))
sketch10.addConstraint(Sketcher.Constraint("DistanceY", 0, 1, 0, 2, Q("0.1 in")))
sketch10.addConstraint(Sketcher.Constraint("DistanceY", 0, 2, -1, 1, Q("0.05 in")))
sketch10.addConstraint(Sketcher.Constraint("DistanceX", -1, 1, 0, 2, Q("1.965 in")))
pad8 = body8.newObject("PartDesign::Pad", "Pad007")
pad8.Profile = sketch10
pad8.Length = Q("0.34 in")
pad8.Reversed = True

doc.recompute()
